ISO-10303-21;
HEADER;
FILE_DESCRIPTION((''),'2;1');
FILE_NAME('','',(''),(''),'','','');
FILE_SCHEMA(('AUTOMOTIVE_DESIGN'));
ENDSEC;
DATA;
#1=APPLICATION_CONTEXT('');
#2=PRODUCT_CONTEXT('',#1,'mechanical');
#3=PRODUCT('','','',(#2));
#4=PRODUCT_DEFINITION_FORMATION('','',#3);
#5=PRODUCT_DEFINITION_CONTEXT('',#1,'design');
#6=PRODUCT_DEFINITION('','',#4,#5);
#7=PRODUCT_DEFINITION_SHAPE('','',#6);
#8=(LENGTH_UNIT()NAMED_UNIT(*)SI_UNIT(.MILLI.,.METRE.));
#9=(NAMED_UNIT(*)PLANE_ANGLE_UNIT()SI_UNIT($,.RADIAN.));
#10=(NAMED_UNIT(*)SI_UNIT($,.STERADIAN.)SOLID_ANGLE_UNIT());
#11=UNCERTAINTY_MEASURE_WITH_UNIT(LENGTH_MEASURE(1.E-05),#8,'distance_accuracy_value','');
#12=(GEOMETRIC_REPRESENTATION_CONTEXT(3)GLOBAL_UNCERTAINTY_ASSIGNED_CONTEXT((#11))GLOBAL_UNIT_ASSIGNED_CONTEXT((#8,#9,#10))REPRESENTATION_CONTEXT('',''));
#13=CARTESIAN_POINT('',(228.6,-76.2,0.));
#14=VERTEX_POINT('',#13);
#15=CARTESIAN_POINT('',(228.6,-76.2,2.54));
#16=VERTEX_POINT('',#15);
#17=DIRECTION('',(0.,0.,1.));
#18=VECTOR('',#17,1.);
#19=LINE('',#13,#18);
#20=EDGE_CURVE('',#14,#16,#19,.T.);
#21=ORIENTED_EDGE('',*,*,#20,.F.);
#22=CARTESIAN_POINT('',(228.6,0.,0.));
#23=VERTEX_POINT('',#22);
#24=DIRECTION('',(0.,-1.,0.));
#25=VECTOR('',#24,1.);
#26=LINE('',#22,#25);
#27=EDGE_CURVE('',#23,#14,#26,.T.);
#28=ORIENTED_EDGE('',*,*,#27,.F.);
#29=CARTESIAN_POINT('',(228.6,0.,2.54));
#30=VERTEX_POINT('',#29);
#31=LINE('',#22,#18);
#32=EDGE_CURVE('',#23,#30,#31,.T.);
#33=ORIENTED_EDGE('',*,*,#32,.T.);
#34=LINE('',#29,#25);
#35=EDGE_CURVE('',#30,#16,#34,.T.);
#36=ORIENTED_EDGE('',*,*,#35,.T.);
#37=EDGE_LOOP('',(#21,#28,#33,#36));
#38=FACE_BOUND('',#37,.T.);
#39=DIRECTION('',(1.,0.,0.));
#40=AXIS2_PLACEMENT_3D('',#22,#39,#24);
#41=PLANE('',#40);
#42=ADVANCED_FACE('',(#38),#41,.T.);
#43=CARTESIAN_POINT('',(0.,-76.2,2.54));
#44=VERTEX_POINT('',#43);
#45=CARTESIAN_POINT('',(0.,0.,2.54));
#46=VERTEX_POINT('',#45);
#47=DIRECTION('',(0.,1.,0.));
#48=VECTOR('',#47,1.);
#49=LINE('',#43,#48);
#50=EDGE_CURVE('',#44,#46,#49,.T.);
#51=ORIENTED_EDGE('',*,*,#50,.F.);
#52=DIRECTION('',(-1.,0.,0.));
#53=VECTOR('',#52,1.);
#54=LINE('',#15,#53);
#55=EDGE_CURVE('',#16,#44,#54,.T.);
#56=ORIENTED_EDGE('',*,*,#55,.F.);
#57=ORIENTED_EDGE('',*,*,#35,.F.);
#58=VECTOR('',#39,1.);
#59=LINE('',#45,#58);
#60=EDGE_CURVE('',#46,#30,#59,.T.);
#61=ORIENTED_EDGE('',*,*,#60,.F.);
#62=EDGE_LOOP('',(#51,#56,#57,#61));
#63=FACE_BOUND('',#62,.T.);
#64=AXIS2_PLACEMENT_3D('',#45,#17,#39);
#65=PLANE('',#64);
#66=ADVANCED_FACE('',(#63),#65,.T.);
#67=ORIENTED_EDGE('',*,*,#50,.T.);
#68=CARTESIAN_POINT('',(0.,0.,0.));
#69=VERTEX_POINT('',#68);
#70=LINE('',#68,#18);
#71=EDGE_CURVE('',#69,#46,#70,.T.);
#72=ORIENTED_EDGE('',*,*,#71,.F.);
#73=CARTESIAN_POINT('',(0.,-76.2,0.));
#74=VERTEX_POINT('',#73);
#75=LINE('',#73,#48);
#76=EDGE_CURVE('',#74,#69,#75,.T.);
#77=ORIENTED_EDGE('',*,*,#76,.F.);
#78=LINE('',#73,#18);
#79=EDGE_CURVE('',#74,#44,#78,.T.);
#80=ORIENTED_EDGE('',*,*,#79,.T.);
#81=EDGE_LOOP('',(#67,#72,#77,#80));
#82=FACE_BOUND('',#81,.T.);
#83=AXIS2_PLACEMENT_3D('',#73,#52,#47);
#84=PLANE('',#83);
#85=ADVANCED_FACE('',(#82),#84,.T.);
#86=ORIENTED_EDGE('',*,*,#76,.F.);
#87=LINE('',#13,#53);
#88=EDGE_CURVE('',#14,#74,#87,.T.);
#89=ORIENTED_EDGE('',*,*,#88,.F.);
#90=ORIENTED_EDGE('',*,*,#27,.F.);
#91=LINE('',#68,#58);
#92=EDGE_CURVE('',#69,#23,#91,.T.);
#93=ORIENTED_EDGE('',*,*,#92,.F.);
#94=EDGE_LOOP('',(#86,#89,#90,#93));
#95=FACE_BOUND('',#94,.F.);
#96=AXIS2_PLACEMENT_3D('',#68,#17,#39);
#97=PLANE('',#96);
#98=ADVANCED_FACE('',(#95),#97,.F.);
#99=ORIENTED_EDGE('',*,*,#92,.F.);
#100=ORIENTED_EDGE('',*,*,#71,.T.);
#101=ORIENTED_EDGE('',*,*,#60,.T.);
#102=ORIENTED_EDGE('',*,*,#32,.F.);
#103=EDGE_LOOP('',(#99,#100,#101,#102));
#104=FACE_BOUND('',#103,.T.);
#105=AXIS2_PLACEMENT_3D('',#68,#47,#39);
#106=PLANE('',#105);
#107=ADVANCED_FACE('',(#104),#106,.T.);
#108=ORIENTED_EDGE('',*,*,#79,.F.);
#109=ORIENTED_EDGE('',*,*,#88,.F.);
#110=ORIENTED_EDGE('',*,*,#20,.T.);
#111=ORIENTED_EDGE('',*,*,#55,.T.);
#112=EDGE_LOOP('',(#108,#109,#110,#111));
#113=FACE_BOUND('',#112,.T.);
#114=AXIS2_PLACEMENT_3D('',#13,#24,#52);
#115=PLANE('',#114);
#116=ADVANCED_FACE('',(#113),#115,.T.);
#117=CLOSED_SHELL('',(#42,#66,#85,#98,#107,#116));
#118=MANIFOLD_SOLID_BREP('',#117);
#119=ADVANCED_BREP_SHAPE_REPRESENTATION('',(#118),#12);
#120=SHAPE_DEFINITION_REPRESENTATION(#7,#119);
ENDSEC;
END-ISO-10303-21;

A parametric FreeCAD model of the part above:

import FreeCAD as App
import Part
import Sketcher
from FreeCAD import Vector
Q = App.Units.Quantity


def add_polygon(sketch, points):
    """Adds a closed chain of lines whose ends are joined by coincident constraints."""
    first, n = sketch.GeometryCount, len(points)
    for a, b in zip(points, points[1:] + points[:1]):
        sketch.addGeometry(Part.LineSegment(App.Vector(*a, 0), App.Vector(*b, 0)), False)
    for i in range(n):
        sketch.addConstraint(Sketcher.Constraint("Coincident", first + i, 2, first + (i + 1) % n, 1))

doc = App.newDocument("Part")
body = doc.addObject("PartDesign::Body", "Body")

sketch1 = body.newObject("Sketcher::SketchObject", "Sketch")
sketch1.AttachmentSupport = (doc.getObject("XY_Plane"), [""])
sketch1.MapMode = "FlatFace"
add_polygon(sketch1, [(229, 0), (0, 0), (0, -76), (229, -76)])
sketch1.addConstraint(Sketcher.Constraint("Horizontal", 0))
sketch1.addConstraint(Sketcher.Constraint("Vertical", 1))
sketch1.addConstraint(Sketcher.Constraint("Horizontal", 2))
sketch1.addConstraint(Sketcher.Constraint("Vertical", 3))
sketch1.addConstraint(Sketcher.Constraint("Coincident", 0, 2, -1, 1))
sketch1.addConstraint(Sketcher.Constraint("DistanceX", 0, 2, 0, 1, Q("9 in")))
sketch1.addConstraint(Sketcher.Constraint("DistanceY", 1, 2, 1, 1, Q("3 in")))
pad1 = body.newObject("PartDesign::Pad", "Pad")
pad1.Profile = sketch1
pad1.Length = Q("0.1 in")

doc.recompute()
